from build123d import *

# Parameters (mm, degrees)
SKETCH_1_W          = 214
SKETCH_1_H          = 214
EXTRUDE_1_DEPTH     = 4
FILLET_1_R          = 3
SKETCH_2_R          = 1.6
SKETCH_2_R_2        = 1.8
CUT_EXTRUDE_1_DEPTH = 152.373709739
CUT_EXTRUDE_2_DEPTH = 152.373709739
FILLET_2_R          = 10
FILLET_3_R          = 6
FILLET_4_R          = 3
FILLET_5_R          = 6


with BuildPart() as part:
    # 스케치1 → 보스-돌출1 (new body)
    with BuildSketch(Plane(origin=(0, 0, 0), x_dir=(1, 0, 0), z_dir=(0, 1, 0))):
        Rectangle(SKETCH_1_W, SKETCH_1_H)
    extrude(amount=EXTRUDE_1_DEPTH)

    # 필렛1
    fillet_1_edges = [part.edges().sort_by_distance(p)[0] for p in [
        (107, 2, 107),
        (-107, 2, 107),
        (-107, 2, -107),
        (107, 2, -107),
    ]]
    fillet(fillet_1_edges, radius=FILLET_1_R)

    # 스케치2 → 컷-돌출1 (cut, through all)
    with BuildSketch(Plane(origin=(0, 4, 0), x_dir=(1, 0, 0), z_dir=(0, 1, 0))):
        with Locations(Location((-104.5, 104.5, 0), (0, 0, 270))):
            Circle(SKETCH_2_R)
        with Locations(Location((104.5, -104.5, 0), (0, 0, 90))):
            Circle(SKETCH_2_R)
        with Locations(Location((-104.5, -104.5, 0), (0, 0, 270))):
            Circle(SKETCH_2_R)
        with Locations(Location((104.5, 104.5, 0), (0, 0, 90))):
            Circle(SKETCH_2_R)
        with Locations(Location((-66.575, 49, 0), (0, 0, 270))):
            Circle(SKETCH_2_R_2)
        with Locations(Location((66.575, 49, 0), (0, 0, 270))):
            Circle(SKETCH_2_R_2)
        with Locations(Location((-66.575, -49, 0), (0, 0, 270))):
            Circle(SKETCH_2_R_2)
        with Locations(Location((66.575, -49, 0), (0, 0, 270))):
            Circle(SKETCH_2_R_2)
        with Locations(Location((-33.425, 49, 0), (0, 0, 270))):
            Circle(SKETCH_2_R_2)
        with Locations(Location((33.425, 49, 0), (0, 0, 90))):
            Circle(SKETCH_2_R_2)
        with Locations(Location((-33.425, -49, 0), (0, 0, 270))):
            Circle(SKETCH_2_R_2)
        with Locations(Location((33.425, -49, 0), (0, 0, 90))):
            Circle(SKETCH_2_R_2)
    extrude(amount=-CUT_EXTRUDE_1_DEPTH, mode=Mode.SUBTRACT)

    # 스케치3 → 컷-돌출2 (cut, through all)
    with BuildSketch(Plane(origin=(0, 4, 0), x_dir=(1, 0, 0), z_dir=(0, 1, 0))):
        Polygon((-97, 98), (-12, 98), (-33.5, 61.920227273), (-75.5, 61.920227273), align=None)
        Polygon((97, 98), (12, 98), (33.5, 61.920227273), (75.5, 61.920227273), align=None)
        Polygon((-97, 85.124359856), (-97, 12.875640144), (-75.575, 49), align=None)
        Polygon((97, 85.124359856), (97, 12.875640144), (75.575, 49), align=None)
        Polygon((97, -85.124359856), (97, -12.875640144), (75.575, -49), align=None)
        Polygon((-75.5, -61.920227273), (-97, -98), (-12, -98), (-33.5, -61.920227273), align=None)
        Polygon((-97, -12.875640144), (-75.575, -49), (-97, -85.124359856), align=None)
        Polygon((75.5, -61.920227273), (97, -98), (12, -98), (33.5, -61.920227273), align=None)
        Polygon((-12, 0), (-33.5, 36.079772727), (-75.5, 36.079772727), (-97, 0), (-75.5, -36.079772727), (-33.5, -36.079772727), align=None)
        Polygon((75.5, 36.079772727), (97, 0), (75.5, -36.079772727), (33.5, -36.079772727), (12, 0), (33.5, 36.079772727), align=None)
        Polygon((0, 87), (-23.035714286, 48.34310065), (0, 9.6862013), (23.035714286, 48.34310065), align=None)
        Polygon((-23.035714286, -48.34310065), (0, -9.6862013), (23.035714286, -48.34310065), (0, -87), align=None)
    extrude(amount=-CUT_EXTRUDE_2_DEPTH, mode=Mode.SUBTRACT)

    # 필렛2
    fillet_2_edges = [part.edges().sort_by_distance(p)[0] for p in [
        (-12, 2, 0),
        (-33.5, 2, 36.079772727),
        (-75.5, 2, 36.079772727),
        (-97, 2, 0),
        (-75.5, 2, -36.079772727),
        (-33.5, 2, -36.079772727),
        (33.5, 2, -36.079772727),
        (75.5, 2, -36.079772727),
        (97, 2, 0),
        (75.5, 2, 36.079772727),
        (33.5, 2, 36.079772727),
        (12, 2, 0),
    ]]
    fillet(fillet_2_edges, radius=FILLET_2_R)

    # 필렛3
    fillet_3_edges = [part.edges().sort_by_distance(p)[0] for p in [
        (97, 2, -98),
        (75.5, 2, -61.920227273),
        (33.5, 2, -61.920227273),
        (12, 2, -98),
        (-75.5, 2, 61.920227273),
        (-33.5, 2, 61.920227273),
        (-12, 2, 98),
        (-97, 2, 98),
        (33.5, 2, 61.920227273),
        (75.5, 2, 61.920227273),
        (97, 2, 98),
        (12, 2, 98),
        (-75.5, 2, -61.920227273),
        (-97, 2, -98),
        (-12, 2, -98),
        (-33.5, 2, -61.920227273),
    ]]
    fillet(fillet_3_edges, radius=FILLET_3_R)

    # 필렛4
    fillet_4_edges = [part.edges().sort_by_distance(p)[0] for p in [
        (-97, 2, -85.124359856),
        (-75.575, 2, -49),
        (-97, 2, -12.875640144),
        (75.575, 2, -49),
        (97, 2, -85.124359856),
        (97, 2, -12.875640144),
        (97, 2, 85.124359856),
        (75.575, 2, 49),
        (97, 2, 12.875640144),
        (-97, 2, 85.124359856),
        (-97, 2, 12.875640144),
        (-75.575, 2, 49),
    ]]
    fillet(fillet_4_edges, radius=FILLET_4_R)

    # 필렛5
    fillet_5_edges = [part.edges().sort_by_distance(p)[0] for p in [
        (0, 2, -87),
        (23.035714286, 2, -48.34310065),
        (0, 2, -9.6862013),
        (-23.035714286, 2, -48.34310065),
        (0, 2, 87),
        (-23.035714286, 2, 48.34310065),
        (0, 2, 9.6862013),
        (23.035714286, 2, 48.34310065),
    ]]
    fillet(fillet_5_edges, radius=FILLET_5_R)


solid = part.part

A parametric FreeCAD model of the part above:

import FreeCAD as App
import Part
import Sketcher
Q = App.Units.Quantity


def edges_at(feature, points):
    """Names of the edges that pass closest to the given points."""
    edges = feature.Shape.Edges
    near = lambda p: min(range(len(edges)), key=lambda i: edges[i].distToShape(Part.Vertex(*p))[0])
    return sorted({f"Edge{near(p) + 1}" for p in points})

doc = App.newDocument("Part")
body = doc.addObject("PartDesign::Body", "Body")

sketch1 = body.newObject("Sketcher::SketchObject", "Sketch")
sketch1.AttachmentSupport = (doc.getObject("XZ_Plane"), [""])
sketch1.MapMode = "FlatFace"
sketch1.addGeometry([
    Part.LineSegment(App.Vector(-107, -107, 0), App.Vector(-107, 107, 0)),
    Part.LineSegment(App.Vector(-107, 107, 0), App.Vector(107, 107, 0)),
    Part.LineSegment(App.Vector(107, 107, 0), App.Vector(107, -107, 0)),
    Part.LineSegment(App.Vector(107, -107, 0), App.Vector(-107, -107, 0)),
], False)
sketch1.addConstraint([
    Sketcher.Constraint("Coincident", 0, 2, 1, 1),
    Sketcher.Constraint("Coincident", 1, 2, 2, 1),
    Sketcher.Constraint("Coincident", 2, 2, 3, 1),
    Sketcher.Constraint("Coincident", 3, 2, 0, 1),
    Sketcher.Constraint("Vertical", 0),
    Sketcher.Constraint("Horizontal", 1),
    Sketcher.Constraint("Vertical", 2),
    Sketcher.Constraint("Horizontal", 3),
    Sketcher.Constraint("Symmetric", 0, 2, 2, 2, -1, 1),
    Sketcher.Constraint("Equal", 3, 0),
    Sketcher.Constraint("DistanceX", 1, 1, 1, 2, Q("214 mm")),
])
pad1 = body.newObject("PartDesign::Pad", "Pad")
pad1.Profile = sketch1
pad1.Length = 4
pad1.Reversed = True
doc.recompute()

fillet = body.newObject("PartDesign::Fillet", "Fillet")
fillet.Base = (pad1, edges_at(pad1, [
    (107, 2, 107),
    (-107, 2, 107),
    (-107, 2, -107),
    (107, 2, -107),
]))
fillet.Radius = 3

sketch2 = body.newObject("Sketcher::SketchObject", "Sketch001")
sketch2.AttachmentSupport = (doc.getObject("XZ_Plane"), [""])
sketch2.MapMode = "FlatFace"
sketch2.AttachmentOffset = App.Placement(App.Vector(0, 0, -4), App.Rotation())
sketch2.addGeometry([
    Part.Circle(App.Vector(-104.5, -104.5, 0), App.Vector(0, 0, 1), 1.6),
    Part.Circle(App.Vector(104.5, 104.5, 0), App.Vector(0, 0, 1), 1.6),
    Part.Circle(App.Vector(-104.5, 104.5, 0), App.Vector(0, 0, 1), 1.6),
    Part.Circle(App.Vector(104.5, -104.5, 0), App.Vector(0, 0, 1), 1.6),
    Part.Circle(App.Vector(-66.6, -49, 0), App.Vector(0, 0, 1), 1.8),
    Part.Circle(App.Vector(66.6, -49, 0), App.Vector(0, 0, 1), 1.8),
    Part.Circle(App.Vector(-66.6, 49, 0), App.Vector(0, 0, 1), 1.8),
    Part.Circle(App.Vector(66.6, 49, 0), App.Vector(0, 0, 1), 1.8),
    Part.Circle(App.Vector(-33.4, -49, 0), App.Vector(0, 0, 1), 1.8),
    Part.Circle(App.Vector(33.4, -49, 0), App.Vector(0, 0, 1), 1.8),
    Part.Circle(App.Vector(-33.4, 49, 0), App.Vector(0, 0, 1), 1.8),
    Part.Circle(App.Vector(33.4, 49, 0), App.Vector(0, 0, 1), 1.8),
], False)
sketch2.addConstraint([
    Sketcher.Constraint("Equal", 0, 1),
    Sketcher.Constraint("Equal", 1, 2),
    Sketcher.Constraint("Equal", 2, 3),
    Sketcher.Constraint("Equal", 4, 5),
    Sketcher.Constraint("Equal", 5, 6),
    Sketcher.Constraint("Equal", 6, 7),
    Sketcher.Constraint("Equal", 7, 8),
    Sketcher.Constraint("Equal", 8, 9),
    Sketcher.Constraint("Equal", 9, 10),
    Sketcher.Constraint("Equal", 10, 11),
    Sketcher.Constraint("Symmetric", 0, 3, 1, 3, -1, 1),
    Sketcher.Constraint("Symmetric", 2, 3, 3, 3, -1, 1),
    Sketcher.Constraint("Symmetric", 5, 3, 6, 3, -1, 1),
    Sketcher.Constraint("Symmetric", 4, 3, 7, 3, -1, 1),
    Sketcher.Constraint("Symmetric", 9, 3, 10, 3, -1, 1),
    Sketcher.Constraint("Symmetric", 8, 3, 11, 3, -1, 1),
    Sketcher.Constraint("Symmetric", 1, 3, 2, 3, -2),
    Sketcher.Constraint("Symmetric", 4, 3, 5, 3, -2),
    Sketcher.Constraint("Symmetric", 8, 3, 9, 3, -2),
    Sketcher.Constraint("Horizontal", 5, 3, 8, 3),
    Sketcher.Constraint("Diameter", 0, Q("3.2 mm")),
    Sketcher.Constraint("Diameter", 4, Q("3.6 mm")),
    Sketcher.Constraint("DistanceY", 4, 3, -1, 1, Q("49 mm")),
    Sketcher.Constraint("DistanceX", 0, 3, 1, 3, Q("209 mm")),
    Sketcher.Constraint("DistanceY", 0, 3, 1, 3, Q("209 mm")),
    Sketcher.Constraint("DistanceX", 8, 3, 5, 3, Q("100 mm")),
    Sketcher.Constraint("DistanceX", 4, 3, 5, 3, Q("133.15 mm")),
])
pocket1 = body.newObject("PartDesign::Pocket", "Pocket")
pocket1.Profile = sketch2
pocket1.Type = "ThroughAll"
pocket1.Reversed = True

sketch3 = body.newObject("Sketcher::SketchObject", "Sketch002")
sketch3.AttachmentSupport = (doc.getObject("XZ_Plane"), [""])
sketch3.MapMode = "FlatFace"
sketch3.AttachmentOffset = App.Placement(App.Vector(0, 0, -4), App.Rotation())
sketch3.addGeometry([
    Part.LineSegment(App.Vector(-12, -98, 0), App.Vector(-97, -98, 0)),
    Part.LineSegment(App.Vector(-97, -98, 0), App.Vector(-76, -62, 0)),
    Part.LineSegment(App.Vector(-76, -62, 0), App.Vector(-34, -62, 0)),
    Part.LineSegment(App.Vector(-34, -62, 0), App.Vector(-12, -98, 0)),
    Part.LineSegment(App.Vector(97, -98, 0), App.Vector(12, -98, 0)),
    Part.LineSegment(App.Vector(12, -98, 0), App.Vector(34, -62, 0)),
    Part.LineSegment(App.Vector(34, -62, 0), App.Vector(76, -62, 0)),
    Part.LineSegment(App.Vector(76, -62, 0), App.Vector(97, -98, 0)),
    Part.LineSegment(App.Vector(-97, -85, 0), App.Vector(-97, -13, 0)),
    Part.LineSegment(App.Vector(-97, -13, 0), App.Vector(-76, -49, 0)),
    Part.LineSegment(App.Vector(-76, -49, 0), App.Vector(-97, -85, 0)),
    Part.LineSegment(App.Vector(97, -13, 0), App.Vector(97, -85, 0)),
    Part.LineSegment(App.Vector(97, -85, 0), App.Vector(76, -49, 0)),
    Part.LineSegment(App.Vector(76, -49, 0), App.Vector(97, -13, 0)),
    Part.LineSegment(App.Vector(97, 85, 0), App.Vector(97, 13, 0)),
    Part.LineSegment(App.Vector(97, 13, 0), App.Vector(76, 49, 0)),
    Part.LineSegment(App.Vector(76, 49, 0), App.Vector(97, 85, 0)),
    Part.LineSegment(App.Vector(-76, 62, 0), App.Vector(-97, 98, 0)),
    Part.LineSegment(App.Vector(-97, 98, 0), App.Vector(-12, 98, 0)),
    Part.LineSegment(App.Vector(-12, 98, 0), App.Vector(-34, 62, 0)),
    Part.LineSegment(App.Vector(-34, 62, 0), App.Vector(-76, 62, 0)),
    Part.LineSegment(App.Vector(-76, 49, 0), App.Vector(-97, 13, 0)),
    Part.LineSegment(App.Vector(-97, 13, 0), App.Vector(-97, 85, 0)),
    Part.LineSegment(App.Vector(-97, 85, 0), App.Vector(-76, 49, 0)),
    Part.LineSegment(App.Vector(97, 98, 0), App.Vector(76, 62, 0)),
    Part.LineSegment(App.Vector(76, 62, 0), App.Vector(34, 62, 0)),
    Part.LineSegment(App.Vector(34, 62, 0), App.Vector(12, 98, 0)),
    Part.LineSegment(App.Vector(12, 98, 0), App.Vector(97, 98, 0)),
    Part.LineSegment(App.Vector(-12, 0, 0), App.Vector(-34, -36, 0)),
    Part.LineSegment(App.Vector(-34, -36, 0), App.Vector(-76, -36, 0)),
    Part.LineSegment(App.Vector(-76, -36, 0), App.Vector(-97, 0, 0)),
    Part.LineSegment(App.Vector(-97, 0, 0), App.Vector(-76, 36, 0)),
    Part.LineSegment(App.Vector(-76, 36, 0), App.Vector(-34, 36, 0)),
    Part.LineSegment(App.Vector(-34, 36, 0), App.Vector(-12, 0, 0)),
    Part.LineSegment(App.Vector(97, 0, 0), App.Vector(76, -36, 0)),
    Part.LineSegment(App.Vector(76, -36, 0), App.Vector(34, -36, 0)),
    Part.LineSegment(App.Vector(34, -36, 0), App.Vector(12, 0, 0)),
    Part.LineSegment(App.Vector(12, 0, 0), App.Vector(34, 36, 0)),
    Part.LineSegment(App.Vector(34, 36, 0), App.Vector(76, 36, 0)),
    Part.LineSegment(App.Vector(76, 36, 0), App.Vector(97, 0, 0)),
    Part.LineSegment(App.Vector(0, -87, 0), App.Vector(-23, -48, 0)),
    Part.LineSegment(App.Vector(-23, -48, 0), App.Vector(0, -10, 0)),
    Part.LineSegment(App.Vector(0, -10, 0), App.Vector(23, -48, 0)),
    Part.LineSegment(App.Vector(23, -48, 0), App.Vector(0, -87, 0)),
    Part.LineSegment(App.Vector(0, 10, 0), App.Vector(-23, 48, 0)),
    Part.LineSegment(App.Vector(-23, 48, 0), App.Vector(0, 87, 0)),
    Part.LineSegment(App.Vector(0, 87, 0), App.Vector(23, 48, 0)),
    Part.LineSegment(App.Vector(23, 48, 0), App.Vector(0, 10, 0)),
], False)
sketch3.addConstraint([
    Sketcher.Constraint("Coincident", 0, 2, 1, 1),
    Sketcher.Constraint("Coincident", 1, 2, 2, 1),
    Sketcher.Constraint("Coincident", 2, 2, 3, 1),
    Sketcher.Constraint("Coincident", 3, 2, 0, 1),
    Sketcher.Constraint("Coincident", 4, 2, 5, 1),
    Sketcher.Constraint("Coincident", 5, 2, 6, 1),
    Sketcher.Constraint("Coincident", 6, 2, 7, 1),
    Sketcher.Constraint("Coincident", 7, 2, 4, 1),
    Sketcher.Constraint("Coincident", 8, 2, 9, 1),
    Sketcher.Constraint("Coincident", 9, 2, 10, 1),
    Sketcher.Constraint("Coincident", 10, 2, 8, 1),
    Sketcher.Constraint("Coincident", 11, 2, 12, 1),
    Sketcher.Constraint("Coincident", 12, 2, 13, 1),
    Sketcher.Constraint("Coincident", 13, 2, 11, 1),
    Sketcher.Constraint("Coincident", 14, 2, 15, 1),
    Sketcher.Constraint("Coincident", 15, 2, 16, 1),
    Sketcher.Constraint("Coincident", 16, 2, 14, 1),
    Sketcher.Constraint("Coincident", 17, 2, 18, 1),
    Sketcher.Constraint("Coincident", 18, 2, 19, 1),
    Sketcher.Constraint("Coincident", 19, 2, 20, 1),
    Sketcher.Constraint("Coincident", 20, 2, 17, 1),
    Sketcher.Constraint("Coincident", 21, 2, 22, 1),
    Sketcher.Constraint("Coincident", 22, 2, 23, 1),
    Sketcher.Constraint("Coincident", 23, 2, 21, 1),
    Sketcher.Constraint("Coincident", 24, 2, 25, 1),
    Sketcher.Constraint("Coincident", 25, 2, 26, 1),
    Sketcher.Constraint("Coincident", 26, 2, 27, 1),
    Sketcher.Constraint("Coincident", 27, 2, 24, 1),
    Sketcher.Constraint("Coincident", 28, 2, 29, 1),
    Sketcher.Constraint("Coincident", 29, 2, 30, 1),
    Sketcher.Constraint("Coincident", 30, 2, 31, 1),
    Sketcher.Constraint("Coincident", 31, 2, 32, 1),
    Sketcher.Constraint("Coincident", 32, 2, 33, 1),
    Sketcher.Constraint("Coincident", 33, 2, 28, 1),
    Sketcher.Constraint("Coincident", 34, 2, 35, 1),
    Sketcher.Constraint("Coincident", 35, 2, 36, 1),
    Sketcher.Constraint("Coincident", 36, 2, 37, 1),
    Sketcher.Constraint("Coincident", 37, 2, 38, 1),
    Sketcher.Constraint("Coincident", 38, 2, 39, 1),
    Sketcher.Constraint("Coincident", 39, 2, 34, 1),
    Sketcher.Constraint("Coincident", 40, 2, 41, 1),
    Sketcher.Constraint("Coincident", 41, 2, 42, 1),
    Sketcher.Constraint("Coincident", 42, 2, 43, 1),
    Sketcher.Constraint("Coincident", 43, 2, 40, 1),
    Sketcher.Constraint("Coincident", 44, 2, 45, 1),
    Sketcher.Constraint("Coincident", 45, 2, 46, 1),
    Sketcher.Constraint("Coincident", 46, 2, 47, 1),
    Sketcher.Constraint("Coincident", 47, 2, 44, 1),
    Sketcher.Constraint("Horizontal", 0),
    Sketcher.Constraint("Horizontal", 2),
    Sketcher.Constraint("Horizontal", 4),
    Sketcher.Constraint("Horizontal", 6),
    Sketcher.Constraint("Vertical", 8),
    Sketcher.Constraint("Vertical", 11),
    Sketcher.Constraint("Vertical", 14),
    Sketcher.Constraint("Horizontal", 18),
    Sketcher.Constraint("Horizontal", 20),
    Sketcher.Constraint("Vertical", 22),
    Sketcher.Constraint("Horizontal", 25),
    Sketcher.Constraint("Horizontal", 27),
    Sketcher.Constraint("Horizontal", 29),
    Sketcher.Constraint("Horizontal", 32),
    Sketcher.Constraint("Horizontal", 35),
    Sketcher.Constraint("Horizontal", 38),
    Sketcher.Constraint("Symmetric", 8, 2, 14, 2, -1, 1),
    Sketcher.Constraint("Symmetric", 9, 2, 15, 2, -1, 1),
    Sketcher.Constraint("Symmetric", 7, 2, 17, 2, -1, 1),
    Sketcher.Constraint("Symmetric", 5, 2, 19, 2, -1, 1),
    Sketcher.Constraint("Symmetric", 13, 2, 21, 2, -1, 1),
    Sketcher.Constraint("Symmetric", 12, 2, 23, 2, -1, 1),
    Sketcher.Constraint("Symmetric", 1, 2, 24, 2, -1, 1),
    Sketcher.Constraint("Symmetric", 3, 2, 26, 2, -1, 1),
    Sketcher.Constraint("Symmetric", 31, 2, 34, 2, -1, 1),
    Sketcher.Constraint("Symmetric", 33, 2, 36, 2, -1, 1),
    Sketcher.Constraint("Symmetric", 28, 2, 37, 2, -1, 1),
    Sketcher.Constraint("Symmetric", 30, 2, 39, 2, -1, 1),
    Sketcher.Constraint("Symmetric", 42, 2, 44, 2, -1, 1),
    Sketcher.Constraint("Symmetric", 43, 2, 45, 2, -1, 1),
    Sketcher.Constraint("Symmetric", 40, 2, 46, 2, -1, 1),
    Sketcher.Constraint("Symmetric", 41, 2, 47, 2, -1, 1),
    Sketcher.Constraint("Symmetric", 3, 2, 4, 2, -2),
    Sketcher.Constraint("Symmetric", 2, 2, 5, 2, -2),
    Sketcher.Constraint("Symmetric", 10, 2, 11, 2, -2),
    Sketcher.Constraint("Symmetric", 9, 2, 12, 2, -2),
    Sketcher.Constraint("Symmetric", 29, 2, 34, 2, -2),
    Sketcher.Constraint("Symmetric", 40, 2, 42, 2, -2),
    Sketcher.Constraint("PointOnObject", 30, 2, -1),
    Sketcher.Constraint("PointOnObject", 33, 2, -1),
    Sketcher.Constraint("PointOnObject", 41, 2, -2),
    Sketcher.Constraint("PointOnObject", 43, 2, -2),
    Sketcher.Constraint("Parallel", 1, 5),
    Sketcher.Constraint("Parallel", 3, 7),
    Sketcher.Constraint("Parallel", 9, 12),
    Sketcher.Constraint("Parallel", 10, 13),
    Sketcher.Constraint("Parallel", 13, 16),
    Sketcher.Constraint("Parallel", 7, 17),
    Sketcher.Constraint("Parallel", 5, 19),
    Sketcher.Constraint("Parallel", 15, 23),
    Sketcher.Constraint("Parallel", 19, 24),
    Sketcher.Constraint("Parallel", 17, 26),
    Sketcher.Constraint("Parallel", 24, 28),
    Sketcher.Constraint("Parallel", 26, 30),
    Sketcher.Constraint("Parallel", 30, 33),
    Sketcher.Constraint("Parallel", 33, 36),
    Sketcher.Constraint("Parallel", 36, 39),
    Sketcher.Constraint("Parallel", 39, 40),
    Sketcher.Constraint("Parallel", 37, 41),
    Sketcher.Constraint("Vertical", 0, 2, 8, 2),
    Sketcher.Constraint("Vertical", 7, 2, 11, 2),
    Sketcher.Constraint("Vertical", 19, 2, 28, 2),
    Sketcher.Constraint("Vertical", 20, 2, 29, 2),
    Sketcher.Constraint("Vertical", 22, 2, 30, 2),
    Sketcher.Constraint("Equal", 7, 9),
    Sketcher.Constraint("DistanceX", 0, 2, 0, 1, Q("85 mm")),
    Sketcher.Constraint("DistanceX", 2, 1, 2, 2, Q("42 mm")),
    Sketcher.Constraint("Distance", 1, Q("42 mm")),
    Sketcher.Constraint("Distance", 40, Q("45 mm")),
    Sketcher.Constraint("DistanceX", 0, 2, -1, 1, Q("97 mm")),
    Sketcher.Constraint("DistanceY", 0, 2, -1, 1, Q("98 mm")),
    Sketcher.Constraint("DistanceY", 9, 2, -1, 1, Q("49 mm")),
    Sketcher.Constraint("DistanceY", 43, 2, -1, 1, Q("87 mm")),
    Sketcher.Constraint("DistanceX", 9, 2, -1, 1, Q("75.575 mm")),
])
pocket2 = body.newObject("PartDesign::Pocket", "Pocket001")
pocket2.Profile = sketch3
pocket2.Type = "ThroughAll"
pocket2.Reversed = True
doc.recompute()

fillet2 = body.newObject("PartDesign::Fillet", "Fillet001")
fillet2.Base = (pocket2, edges_at(pocket2, [
    (-12, 2, 0),
    (-33.5, 2, 36.08),
    (-75.5, 2, 36.08),
    (-97, 2, 0),
    (-75.5, 2, -36.08),
    (-33.5, 2, -36.08),
    (33.5, 2, -36.08),
    (75.5, 2, -36.08),
    (97, 2, 0),
    (75.5, 2, 36.08),
    (33.5, 2, 36.08),
    (12, 2, 0),
]))
fillet2.Radius = 10
doc.recompute()

fillet3 = body.newObject("PartDesign::Fillet", "Fillet002")
fillet3.Base = (fillet2, edges_at(fillet2, [
    (97, 2, -98),
    (75.5, 2, -61.92),
    (33.5, 2, -61.92),
    (12, 2, -98),
    (-75.5, 2, 61.92),
    (-33.5, 2, 61.92),
    (-12, 2, 98),
    (-97, 2, 98),
    (33.5, 2, 61.92),
    (75.5, 2, 61.92),
    (97, 2, 98),
    (12, 2, 98),
    (-75.5, 2, -61.92),
    (-97, 2, -98),
    (-12, 2, -98),
    (-33.5, 2, -61.92),
]))
fillet3.Radius = 6
doc.recompute()

fillet4 = body.newObject("PartDesign::Fillet", "Fillet003")
fillet4.Base = (fillet3, edges_at(fillet3, [
    (-97, 2, -85.124),
    (-75.575, 2, -49),
    (-97, 2, -12.876),
    (75.575, 2, -49),
    (97, 2, -85.124),
    (97, 2, -12.876),
    (97, 2, 85.124),
    (75.575, 2, 49),
    (97, 2, 12.876),
    (-97, 2, 85.124),
    (-97, 2, 12.876),
    (-75.575, 2, 49),
]))
fillet4.Radius = 3
doc.recompute()

fillet5 = body.newObject("PartDesign::Fillet", "Fillet004")
fillet5.Base = (fillet4, edges_at(fillet4, [
    (0, 2, -87),
    (23.036, 2, -48.343),
    (0, 2, -9.686),
    (-23.036, 2, -48.343),
    (0, 2, 87),
    (-23.036, 2, 48.343),
    (0, 2, 9.686),
    (23.036, 2, 48.343),
]))
fillet5.Radius = 6

doc.recompute()
